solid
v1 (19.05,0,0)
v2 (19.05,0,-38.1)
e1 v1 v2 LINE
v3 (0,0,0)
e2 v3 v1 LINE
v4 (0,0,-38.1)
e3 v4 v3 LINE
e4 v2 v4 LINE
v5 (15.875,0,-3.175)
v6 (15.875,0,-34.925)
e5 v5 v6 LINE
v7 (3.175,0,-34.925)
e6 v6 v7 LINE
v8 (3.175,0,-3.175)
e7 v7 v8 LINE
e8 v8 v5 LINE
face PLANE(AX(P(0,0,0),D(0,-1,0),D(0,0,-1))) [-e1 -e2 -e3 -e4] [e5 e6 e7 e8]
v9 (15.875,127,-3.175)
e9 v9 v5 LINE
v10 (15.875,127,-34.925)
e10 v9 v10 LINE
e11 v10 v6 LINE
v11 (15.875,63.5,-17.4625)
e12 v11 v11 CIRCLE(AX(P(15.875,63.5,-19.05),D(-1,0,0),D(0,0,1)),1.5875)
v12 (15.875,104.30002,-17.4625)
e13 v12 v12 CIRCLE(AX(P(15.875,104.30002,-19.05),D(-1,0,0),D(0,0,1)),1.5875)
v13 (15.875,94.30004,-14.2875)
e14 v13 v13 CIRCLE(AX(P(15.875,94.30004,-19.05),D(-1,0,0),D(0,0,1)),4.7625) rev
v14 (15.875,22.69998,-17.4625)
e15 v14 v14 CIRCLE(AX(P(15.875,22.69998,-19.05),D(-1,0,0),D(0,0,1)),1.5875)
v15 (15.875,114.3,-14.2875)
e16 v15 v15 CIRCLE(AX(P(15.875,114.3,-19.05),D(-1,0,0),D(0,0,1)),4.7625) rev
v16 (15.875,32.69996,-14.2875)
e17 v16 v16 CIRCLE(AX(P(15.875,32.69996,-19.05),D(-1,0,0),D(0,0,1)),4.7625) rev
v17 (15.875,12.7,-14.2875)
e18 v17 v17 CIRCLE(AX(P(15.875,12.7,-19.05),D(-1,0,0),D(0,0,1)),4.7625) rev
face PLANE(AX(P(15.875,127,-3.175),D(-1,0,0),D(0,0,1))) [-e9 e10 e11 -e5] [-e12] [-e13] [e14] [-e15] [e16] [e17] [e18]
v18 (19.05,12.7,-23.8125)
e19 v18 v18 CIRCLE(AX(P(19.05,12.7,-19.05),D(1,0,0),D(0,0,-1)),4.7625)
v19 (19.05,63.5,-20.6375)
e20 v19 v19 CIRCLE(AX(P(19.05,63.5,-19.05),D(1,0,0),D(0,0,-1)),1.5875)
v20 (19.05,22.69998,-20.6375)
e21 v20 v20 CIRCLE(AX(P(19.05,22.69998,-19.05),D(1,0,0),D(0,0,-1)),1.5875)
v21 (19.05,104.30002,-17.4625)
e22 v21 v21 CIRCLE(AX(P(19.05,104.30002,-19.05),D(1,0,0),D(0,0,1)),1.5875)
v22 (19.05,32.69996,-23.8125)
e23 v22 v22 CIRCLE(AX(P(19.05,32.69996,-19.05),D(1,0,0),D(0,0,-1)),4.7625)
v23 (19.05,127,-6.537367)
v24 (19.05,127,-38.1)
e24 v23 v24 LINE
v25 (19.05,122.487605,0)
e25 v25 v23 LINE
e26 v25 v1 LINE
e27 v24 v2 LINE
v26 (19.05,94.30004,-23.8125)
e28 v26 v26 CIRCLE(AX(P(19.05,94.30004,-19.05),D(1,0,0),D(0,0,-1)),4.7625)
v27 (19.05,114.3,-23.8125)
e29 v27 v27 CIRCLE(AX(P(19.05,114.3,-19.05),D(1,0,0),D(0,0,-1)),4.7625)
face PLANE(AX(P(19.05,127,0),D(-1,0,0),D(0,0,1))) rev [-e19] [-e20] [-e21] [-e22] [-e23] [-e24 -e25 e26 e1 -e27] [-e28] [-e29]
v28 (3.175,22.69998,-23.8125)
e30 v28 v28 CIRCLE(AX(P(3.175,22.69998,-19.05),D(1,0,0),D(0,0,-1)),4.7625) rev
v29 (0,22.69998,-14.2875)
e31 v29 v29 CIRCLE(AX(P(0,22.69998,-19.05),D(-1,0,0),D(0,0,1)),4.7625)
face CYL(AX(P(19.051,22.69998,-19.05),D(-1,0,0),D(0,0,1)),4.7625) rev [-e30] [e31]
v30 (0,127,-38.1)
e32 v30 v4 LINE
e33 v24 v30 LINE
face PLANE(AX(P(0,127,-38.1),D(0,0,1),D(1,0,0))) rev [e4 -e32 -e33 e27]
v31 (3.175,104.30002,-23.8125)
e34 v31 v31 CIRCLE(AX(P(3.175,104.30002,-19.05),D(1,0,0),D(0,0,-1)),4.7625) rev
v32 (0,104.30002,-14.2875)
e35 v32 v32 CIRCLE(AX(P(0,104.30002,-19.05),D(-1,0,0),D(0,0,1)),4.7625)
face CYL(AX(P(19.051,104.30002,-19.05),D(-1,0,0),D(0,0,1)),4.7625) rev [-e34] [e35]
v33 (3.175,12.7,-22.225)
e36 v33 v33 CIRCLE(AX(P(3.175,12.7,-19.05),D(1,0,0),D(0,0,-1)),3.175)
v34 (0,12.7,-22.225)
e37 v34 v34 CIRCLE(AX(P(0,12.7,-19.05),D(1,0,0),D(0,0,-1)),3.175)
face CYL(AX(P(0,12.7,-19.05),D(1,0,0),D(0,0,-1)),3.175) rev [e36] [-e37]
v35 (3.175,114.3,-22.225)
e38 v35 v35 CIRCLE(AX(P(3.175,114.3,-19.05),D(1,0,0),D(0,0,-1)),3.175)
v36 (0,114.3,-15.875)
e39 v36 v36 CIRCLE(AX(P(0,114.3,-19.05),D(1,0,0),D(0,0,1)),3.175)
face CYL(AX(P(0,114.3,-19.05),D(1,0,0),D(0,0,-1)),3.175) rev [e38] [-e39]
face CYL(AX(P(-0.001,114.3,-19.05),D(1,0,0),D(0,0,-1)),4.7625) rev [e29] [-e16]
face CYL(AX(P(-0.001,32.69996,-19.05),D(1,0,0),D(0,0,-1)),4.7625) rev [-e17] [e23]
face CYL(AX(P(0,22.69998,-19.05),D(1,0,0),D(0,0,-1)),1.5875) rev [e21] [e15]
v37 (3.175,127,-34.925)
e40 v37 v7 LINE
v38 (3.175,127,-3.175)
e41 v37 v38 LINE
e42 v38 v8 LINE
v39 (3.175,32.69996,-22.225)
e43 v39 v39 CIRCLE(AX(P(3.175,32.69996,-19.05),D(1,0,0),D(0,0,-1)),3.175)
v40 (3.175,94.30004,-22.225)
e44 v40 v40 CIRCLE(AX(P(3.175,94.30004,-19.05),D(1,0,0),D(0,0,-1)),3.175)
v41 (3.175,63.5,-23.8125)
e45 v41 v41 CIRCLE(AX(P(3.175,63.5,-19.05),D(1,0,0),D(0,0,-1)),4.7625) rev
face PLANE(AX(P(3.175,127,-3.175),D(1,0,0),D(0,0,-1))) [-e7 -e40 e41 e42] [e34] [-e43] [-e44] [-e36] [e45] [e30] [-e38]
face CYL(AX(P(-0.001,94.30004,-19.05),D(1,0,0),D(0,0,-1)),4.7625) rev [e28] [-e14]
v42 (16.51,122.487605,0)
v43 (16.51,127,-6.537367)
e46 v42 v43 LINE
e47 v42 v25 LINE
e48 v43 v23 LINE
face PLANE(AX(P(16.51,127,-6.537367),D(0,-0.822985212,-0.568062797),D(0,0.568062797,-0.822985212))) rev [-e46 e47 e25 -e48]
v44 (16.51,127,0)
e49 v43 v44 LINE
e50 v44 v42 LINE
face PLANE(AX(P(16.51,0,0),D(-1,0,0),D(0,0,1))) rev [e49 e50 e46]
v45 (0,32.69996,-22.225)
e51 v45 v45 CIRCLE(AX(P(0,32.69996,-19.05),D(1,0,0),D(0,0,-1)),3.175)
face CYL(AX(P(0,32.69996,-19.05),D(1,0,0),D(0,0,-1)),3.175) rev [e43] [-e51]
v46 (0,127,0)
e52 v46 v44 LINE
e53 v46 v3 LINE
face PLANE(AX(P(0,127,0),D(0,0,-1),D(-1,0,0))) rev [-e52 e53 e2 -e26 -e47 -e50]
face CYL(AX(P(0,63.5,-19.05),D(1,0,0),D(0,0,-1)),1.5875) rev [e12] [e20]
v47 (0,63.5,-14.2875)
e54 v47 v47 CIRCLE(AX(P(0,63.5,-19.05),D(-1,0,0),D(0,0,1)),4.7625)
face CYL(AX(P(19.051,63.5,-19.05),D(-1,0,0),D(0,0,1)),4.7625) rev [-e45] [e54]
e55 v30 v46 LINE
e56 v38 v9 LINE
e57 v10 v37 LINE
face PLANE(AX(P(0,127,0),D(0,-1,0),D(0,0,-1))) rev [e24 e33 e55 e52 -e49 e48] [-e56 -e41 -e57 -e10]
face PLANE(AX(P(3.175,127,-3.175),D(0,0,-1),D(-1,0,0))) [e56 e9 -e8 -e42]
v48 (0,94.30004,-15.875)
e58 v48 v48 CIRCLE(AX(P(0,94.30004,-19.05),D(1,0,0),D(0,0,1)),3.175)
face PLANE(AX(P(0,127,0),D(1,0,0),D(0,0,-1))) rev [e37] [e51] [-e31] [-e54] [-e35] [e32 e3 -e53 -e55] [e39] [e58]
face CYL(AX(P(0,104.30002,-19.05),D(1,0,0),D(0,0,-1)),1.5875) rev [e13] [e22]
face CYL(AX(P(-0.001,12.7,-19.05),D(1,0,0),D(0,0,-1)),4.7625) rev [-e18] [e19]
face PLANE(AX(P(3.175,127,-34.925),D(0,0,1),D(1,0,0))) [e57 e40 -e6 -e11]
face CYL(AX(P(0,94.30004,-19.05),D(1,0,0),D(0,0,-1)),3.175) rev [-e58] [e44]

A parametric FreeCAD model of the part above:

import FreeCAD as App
import Part
import Sketcher

V = App.Vector
Q = App.Units.Quantity


def add_polygon(sketch, points):
    """Adds a closed chain of lines whose ends are joined by coincident constraints."""
    first, n = sketch.GeometryCount, len(points)
    for a, b in zip(points, points[1:] + points[:1]):
        sketch.addGeometry(Part.LineSegment(App.Vector(*a, 0), App.Vector(*b, 0)), False)
    for i in range(n):
        sketch.addConstraint(Sketcher.Constraint("Coincident", first + i, 2, first + (i + 1) % n, 1))

doc = App.newDocument("Part")
body = doc.addObject("PartDesign::Body", "Body")

sketch1 = body.newObject("Sketcher::SketchObject", "Sketch")
sketch1.AttachmentSupport = (doc.getObject("XZ_Plane"), [""])
sketch1.MapMode = "FlatFace"
add_polygon(sketch1, [(0, -38.1), (0, 0), (19.05, 0), (19.05, -38.1)])
add_polygon(sketch1, [(15.875, -3.175), (3.175, -3.175), (3.175, -34.925), (15.875, -34.925)])
sketch1.addConstraint(Sketcher.Constraint("Vertical", 0))
sketch1.addConstraint(Sketcher.Constraint("Horizontal", 1))
sketch1.addConstraint(Sketcher.Constraint("Vertical", 2))
sketch1.addConstraint(Sketcher.Constraint("Horizontal", 3))
sketch1.addConstraint(Sketcher.Constraint("Horizontal", 4))
sketch1.addConstraint(Sketcher.Constraint("Vertical", 5))
sketch1.addConstraint(Sketcher.Constraint("Horizontal", 6))
sketch1.addConstraint(Sketcher.Constraint("Vertical", 7))
sketch1.addConstraint(Sketcher.Constraint("Coincident", 0, 2, -1, 1))
sketch1.addConstraint(Sketcher.Constraint("DistanceX", 4, 2, 4, 1, Q("0.5 in")))
sketch1.addConstraint(Sketcher.Constraint("DistanceY", 0, 1, 0, 2, Q("1.5 in")))
sketch1.addConstraint(Sketcher.Constraint("DistanceX", 1, 1, 1, 2, Q("0.75 in")))
sketch1.addConstraint(Sketcher.Constraint("DistanceY", 5, 2, 5, 1, Q("1.25 in")))
sketch1.addConstraint(Sketcher.Constraint("DistanceX", -1, 1, 4, 2, Q("0.125 in")))
sketch1.addConstraint(Sketcher.Constraint("DistanceY", 4, 2, -1, 1, Q("0.125 in")))
pad1 = body.newObject("PartDesign::Pad", "Pad")
pad1.Profile = sketch1
pad1.Length = Q("5 in")
pad1.Reversed = True

sketch2 = body.newObject("Sketcher::SketchObject", "Sketch001")
sketch2.AttachmentSupport = (doc.getObject("YZ_Plane"), [""])
sketch2.MapMode = "FlatFace"
sketch2.AttachmentOffset = App.Placement(V(0, 0, 0.75 * 25.4), App.Rotation())
sketch2.addGeometry(Part.Circle(V(12.7, -19.05, 0), V(0, 0, 1), 3.175), False)
sketch2.addGeometry(Part.Circle(V(32.69996, -19.05, 0), V(0, 0, 1), 3.175), False)
sketch2.addGeometry(Part.Circle(V(94.30004, -19.05, 0), V(0, 0, 1), 3.175), False)
sketch2.addGeometry(Part.Circle(V(114.3, -19.05, 0), V(0, 0, 1), 3.175), False)
sketch2.addConstraint(Sketcher.Constraint("Equal", 0, 1))
sketch2.addConstraint(Sketcher.Constraint("Equal", 1, 2))
sketch2.addConstraint(Sketcher.Constraint("Equal", 2, 3))
sketch2.addConstraint(Sketcher.Constraint("Horizontal", 0, 3, 1, 3))
sketch2.addConstraint(Sketcher.Constraint("Horizontal", 1, 3, 2, 3))
sketch2.addConstraint(Sketcher.Constraint("Horizontal", 2, 3, 3, 3))
sketch2.addConstraint(Sketcher.Constraint("Diameter", 0, Q("0.25 in")))
sketch2.addConstraint(Sketcher.Constraint("DistanceX", 0, 3, 3, 3, Q("4 in")))
sketch2.addConstraint(Sketcher.Constraint("DistanceX", -1, 1, 0, 3, Q("0.5 in")))
sketch2.addConstraint(Sketcher.Constraint("DistanceY", 0, 3, -1, 1, Q("0.75 in")))
sketch2.addConstraint(Sketcher.Constraint("DistanceX", -1, 1, 1, 3, Q("1.2874 in")))
sketch2.addConstraint(Sketcher.Constraint("DistanceX", -1, 1, 2, 3, Q("3.7126 in")))
pocket1 = body.newObject("PartDesign::Pocket", "Pocket")
pocket1.Profile = sketch2
pocket1.Type = "ThroughAll"

sketch3 = body.newObject("Sketcher::SketchObject", "Sketch002")
sketch3.AttachmentSupport = (doc.getObject("YZ_Plane"), [""])
sketch3.MapMode = "FlatFace"
sketch3.AttachmentOffset = App.Placement(V(0, 0, 0.75 * 25.4), App.Rotation())
sketch3.addGeometry(Part.Circle(V(114.3, -19.05, 0), V(0, 0, 1), 4.7625), False)
sketch3.addConstraint(Sketcher.Constraint("Diameter", 0, Q("0.375 in")))
sketch3.addConstraint(Sketcher.Constraint("DistanceX", -1, 1, 0, 3, Q("4.5 in")))
sketch3.addConstraint(Sketcher.Constraint("DistanceY", 0, 3, -1, 1, Q("0.75 in")))
pocket2 = body.newObject("PartDesign::Pocket", "Pocket001")
pocket2.Profile = sketch3
pocket2.Length = Q("0.125 in")

sketch4 = body.newObject("Sketcher::SketchObject", "Sketch003")
sketch4.AttachmentSupport = (doc.getObject("YZ_Plane"), [""])
sketch4.MapMode = "FlatFace"
sketch4.AttachmentOffset = App.Placement(V(0, 0, 0.75 * 25.4), App.Rotation())
sketch4.addGeometry(Part.Circle(V(94.30004, -19.05, 0), V(0, 0, 1), 4.7625), False)
sketch4.addConstraint(Sketcher.Constraint("Diameter", 0, Q("0.375 in")))
sketch4.addConstraint(Sketcher.Constraint("DistanceY", 0, 3, -1, 1, Q("0.75 in")))
sketch4.addConstraint(Sketcher.Constraint("DistanceX", -1, 1, 0, 3, Q("3.7126 in")))
pocket3 = body.newObject("PartDesign::Pocket", "Pocket002")
pocket3.Profile = sketch4
pocket3.Length = Q("0.125 in")

sketch5 = body.newObject("Sketcher::SketchObject", "Sketch004")
sketch5.AttachmentSupport = (doc.getObject("YZ_Plane"), [""])
sketch5.MapMode = "FlatFace"
sketch5.AttachmentOffset = App.Placement(V(0, 0, 0.75 * 25.4), App.Rotation())
sketch5.addGeometry(Part.Circle(V(32.69996, -19.05, 0), V(0, 0, 1), 4.7625), False)
sketch5.addConstraint(Sketcher.Constraint("Diameter", 0, Q("0.375 in")))
sketch5.addConstraint(Sketcher.Constraint("DistanceY", 0, 3, -1, 1, Q("0.75 in")))
sketch5.addConstraint(Sketcher.Constraint("DistanceX", -1, 1, 0, 3, Q("1.2874 in")))
pocket4 = body.newObject("PartDesign::Pocket", "Pocket003")
pocket4.Profile = sketch5
pocket4.Length = Q("0.125 in")

sketch6 = body.newObject("Sketcher::SketchObject", "Sketch005")
sketch6.AttachmentSupport = (doc.getObject("YZ_Plane"), [""])
sketch6.MapMode = "FlatFace"
sketch6.AttachmentOffset = App.Placement(V(0, 0, 0.75 * 25.4), App.Rotation())
sketch6.addGeometry(Part.Circle(V(12.7, -19.05, 0), V(0, 0, 1), 4.7625), False)
sketch6.addConstraint(Sketcher.Constraint("Diameter", 0, Q("0.375 in")))
sketch6.addConstraint(Sketcher.Constraint("DistanceX", -1, 1, 0, 3, Q("0.5 in")))
sketch6.addConstraint(Sketcher.Constraint("DistanceY", 0, 3, -1, 1, Q("0.75 in")))
pocket5 = body.newObject("PartDesign::Pocket", "Pocket004")
pocket5.Profile = sketch6
pocket5.Length = Q("0.125 in")

sketch7 = body.newObject("Sketcher::SketchObject", "Sketch006")
sketch7.AttachmentSupport = (doc.getObject("YZ_Plane"), [""])
sketch7.MapMode = "FlatFace"
sketch7.AttachmentOffset = App.Placement(V(0, 0, 0.75 * 25.4), App.Rotation())
sketch7.addGeometry(Part.Circle(V(22.69998, -19.05, 0), V(0, 0, 1), 1.5875), False)
sketch7.addGeometry(Part.Circle(V(63.5, -19.05, 0), V(0, 0, 1), 1.5875), False)
sketch7.addGeometry(Part.Circle(V(104.30002, -19.05, 0), V(0, 0, 1), 1.5875), False)
sketch7.addConstraint(Sketcher.Constraint("Equal", 0, 1))
sketch7.addConstraint(Sketcher.Constraint("Equal", 1, 2))
sketch7.addConstraint(Sketcher.Constraint("Horizontal", 0, 3, 1, 3))
sketch7.addConstraint(Sketcher.Constraint("Horizontal", 1, 3, 2, 3))
sketch7.addConstraint(Sketcher.Constraint("Diameter", 0, Q("0.125 in")))
sketch7.addConstraint(Sketcher.Constraint("DistanceX", -1, 1, 1, 3, Q("2.5 in")))
sketch7.addConstraint(Sketcher.Constraint("DistanceY", 0, 3, -1, 1, Q("0.75 in")))
sketch7.addConstraint(Sketcher.Constraint("DistanceX", -1, 1, 0, 3, Q("0.8937 in")))
sketch7.addConstraint(Sketcher.Constraint("DistanceX", -1, 1, 2, 3, Q("4.1063 in")))
pocket6 = body.newObject("PartDesign::Pocket", "Pocket005")
pocket6.Profile = sketch7
pocket6.Type = "ThroughAll"

sketch8 = body.newObject("Sketcher::SketchObject", "Sketch007")
sketch8.AttachmentSupport = (doc.getObject("YZ_Plane"), [""])
sketch8.MapMode = "FlatFace"
sketch8.addGeometry(Part.Circle(V(104.30002, -19.05, 0), V(0, 0, 1), 4.7625), False)
sketch8.addConstraint(Sketcher.Constraint("Diameter", 0, Q("0.375 in")))
sketch8.addConstraint(Sketcher.Constraint("DistanceY", 0, 3, -1, 1, Q("0.75 in")))
sketch8.addConstraint(Sketcher.Constraint("DistanceX", -1, 1, 0, 3, Q("4.1063 in")))
pocket7 = body.newObject("PartDesign::Pocket", "Pocket006")
pocket7.Profile = sketch8
pocket7.Length = Q("0.125 in")
pocket7.Reversed = True

sketch9 = body.newObject("Sketcher::SketchObject", "Sketch008")
sketch9.AttachmentSupport = (doc.getObject("YZ_Plane"), [""])
sketch9.MapMode = "FlatFace"
sketch9.addGeometry(Part.Circle(V(63.5, -19.05, 0), V(0, 0, 1), 4.7625), False)
sketch9.addConstraint(Sketcher.Constraint("Diameter", 0, Q("0.375 in")))
sketch9.addConstraint(Sketcher.Constraint("DistanceX", -1, 1, 0, 3, Q("2.5 in")))
sketch9.addConstraint(Sketcher.Constraint("DistanceY", 0, 3, -1, 1, Q("0.75 in")))
pocket8 = body.newObject("PartDesign::Pocket", "Pocket007")
pocket8.Profile = sketch9
pocket8.Length = Q("0.125 in")
pocket8.Reversed = True

sketch10 = body.newObject("Sketcher::SketchObject", "Sketch009")
sketch10.AttachmentSupport = (doc.getObject("YZ_Plane"), [""])
sketch10.MapMode = "FlatFace"
sketch10.addGeometry(Part.Circle(V(22.69998, -19.05, 0), V(0, 0, 1), 4.7625), False)
sketch10.addConstraint(Sketcher.Constraint("Diameter", 0, Q("0.375 in")))
sketch10.addConstraint(Sketcher.Constraint("DistanceY", 0, 3, -1, 1, Q("0.75 in")))
sketch10.addConstraint(Sketcher.Constraint("DistanceX", -1, 1, 0, 3, Q("0.8937 in")))
pocket9 = body.newObject("PartDesign::Pocket", "Pocket008")
pocket9.Profile = sketch10
pocket9.Length = Q("0.125 in")
pocket9.Reversed = True

sketch11 = body.newObject("Sketcher::SketchObject", "Sketch010")
sketch11.AttachmentSupport = (doc.getObject("YZ_Plane"), [""])
sketch11.MapMode = "FlatFace"
sketch11.AttachmentOffset = App.Placement(V(0, 0, 0.75 * 25.4), App.Rotation())
add_polygon(sketch11, [(127, -6.537367), (127, 0), (122.487605, 0)])
sketch11.addConstraint(Sketcher.Constraint("Vertical", 0))
sketch11.addConstraint(Sketcher.Constraint("Horizontal", 1))
sketch11.addConstraint(Sketcher.Constraint("PointOnObject", 0, 2, -1))
sketch11.addConstraint(Sketcher.Constraint("DistanceX", -1, 1, 0, 2, Q("5 in")))
sketch11.addConstraint(Sketcher.Constraint("Distance", 2, Q("7.94348 mm")))
sketch11.addConstraint(Sketcher.Constraint("DistanceX", 1, 2, 1, 1, Q("4.512395 mm")))
pocket10 = body.newObject("PartDesign::Pocket", "Pocket009")
pocket10.Profile = sketch11
pocket10.Length = Q("0.1 in")

doc.recompute()
